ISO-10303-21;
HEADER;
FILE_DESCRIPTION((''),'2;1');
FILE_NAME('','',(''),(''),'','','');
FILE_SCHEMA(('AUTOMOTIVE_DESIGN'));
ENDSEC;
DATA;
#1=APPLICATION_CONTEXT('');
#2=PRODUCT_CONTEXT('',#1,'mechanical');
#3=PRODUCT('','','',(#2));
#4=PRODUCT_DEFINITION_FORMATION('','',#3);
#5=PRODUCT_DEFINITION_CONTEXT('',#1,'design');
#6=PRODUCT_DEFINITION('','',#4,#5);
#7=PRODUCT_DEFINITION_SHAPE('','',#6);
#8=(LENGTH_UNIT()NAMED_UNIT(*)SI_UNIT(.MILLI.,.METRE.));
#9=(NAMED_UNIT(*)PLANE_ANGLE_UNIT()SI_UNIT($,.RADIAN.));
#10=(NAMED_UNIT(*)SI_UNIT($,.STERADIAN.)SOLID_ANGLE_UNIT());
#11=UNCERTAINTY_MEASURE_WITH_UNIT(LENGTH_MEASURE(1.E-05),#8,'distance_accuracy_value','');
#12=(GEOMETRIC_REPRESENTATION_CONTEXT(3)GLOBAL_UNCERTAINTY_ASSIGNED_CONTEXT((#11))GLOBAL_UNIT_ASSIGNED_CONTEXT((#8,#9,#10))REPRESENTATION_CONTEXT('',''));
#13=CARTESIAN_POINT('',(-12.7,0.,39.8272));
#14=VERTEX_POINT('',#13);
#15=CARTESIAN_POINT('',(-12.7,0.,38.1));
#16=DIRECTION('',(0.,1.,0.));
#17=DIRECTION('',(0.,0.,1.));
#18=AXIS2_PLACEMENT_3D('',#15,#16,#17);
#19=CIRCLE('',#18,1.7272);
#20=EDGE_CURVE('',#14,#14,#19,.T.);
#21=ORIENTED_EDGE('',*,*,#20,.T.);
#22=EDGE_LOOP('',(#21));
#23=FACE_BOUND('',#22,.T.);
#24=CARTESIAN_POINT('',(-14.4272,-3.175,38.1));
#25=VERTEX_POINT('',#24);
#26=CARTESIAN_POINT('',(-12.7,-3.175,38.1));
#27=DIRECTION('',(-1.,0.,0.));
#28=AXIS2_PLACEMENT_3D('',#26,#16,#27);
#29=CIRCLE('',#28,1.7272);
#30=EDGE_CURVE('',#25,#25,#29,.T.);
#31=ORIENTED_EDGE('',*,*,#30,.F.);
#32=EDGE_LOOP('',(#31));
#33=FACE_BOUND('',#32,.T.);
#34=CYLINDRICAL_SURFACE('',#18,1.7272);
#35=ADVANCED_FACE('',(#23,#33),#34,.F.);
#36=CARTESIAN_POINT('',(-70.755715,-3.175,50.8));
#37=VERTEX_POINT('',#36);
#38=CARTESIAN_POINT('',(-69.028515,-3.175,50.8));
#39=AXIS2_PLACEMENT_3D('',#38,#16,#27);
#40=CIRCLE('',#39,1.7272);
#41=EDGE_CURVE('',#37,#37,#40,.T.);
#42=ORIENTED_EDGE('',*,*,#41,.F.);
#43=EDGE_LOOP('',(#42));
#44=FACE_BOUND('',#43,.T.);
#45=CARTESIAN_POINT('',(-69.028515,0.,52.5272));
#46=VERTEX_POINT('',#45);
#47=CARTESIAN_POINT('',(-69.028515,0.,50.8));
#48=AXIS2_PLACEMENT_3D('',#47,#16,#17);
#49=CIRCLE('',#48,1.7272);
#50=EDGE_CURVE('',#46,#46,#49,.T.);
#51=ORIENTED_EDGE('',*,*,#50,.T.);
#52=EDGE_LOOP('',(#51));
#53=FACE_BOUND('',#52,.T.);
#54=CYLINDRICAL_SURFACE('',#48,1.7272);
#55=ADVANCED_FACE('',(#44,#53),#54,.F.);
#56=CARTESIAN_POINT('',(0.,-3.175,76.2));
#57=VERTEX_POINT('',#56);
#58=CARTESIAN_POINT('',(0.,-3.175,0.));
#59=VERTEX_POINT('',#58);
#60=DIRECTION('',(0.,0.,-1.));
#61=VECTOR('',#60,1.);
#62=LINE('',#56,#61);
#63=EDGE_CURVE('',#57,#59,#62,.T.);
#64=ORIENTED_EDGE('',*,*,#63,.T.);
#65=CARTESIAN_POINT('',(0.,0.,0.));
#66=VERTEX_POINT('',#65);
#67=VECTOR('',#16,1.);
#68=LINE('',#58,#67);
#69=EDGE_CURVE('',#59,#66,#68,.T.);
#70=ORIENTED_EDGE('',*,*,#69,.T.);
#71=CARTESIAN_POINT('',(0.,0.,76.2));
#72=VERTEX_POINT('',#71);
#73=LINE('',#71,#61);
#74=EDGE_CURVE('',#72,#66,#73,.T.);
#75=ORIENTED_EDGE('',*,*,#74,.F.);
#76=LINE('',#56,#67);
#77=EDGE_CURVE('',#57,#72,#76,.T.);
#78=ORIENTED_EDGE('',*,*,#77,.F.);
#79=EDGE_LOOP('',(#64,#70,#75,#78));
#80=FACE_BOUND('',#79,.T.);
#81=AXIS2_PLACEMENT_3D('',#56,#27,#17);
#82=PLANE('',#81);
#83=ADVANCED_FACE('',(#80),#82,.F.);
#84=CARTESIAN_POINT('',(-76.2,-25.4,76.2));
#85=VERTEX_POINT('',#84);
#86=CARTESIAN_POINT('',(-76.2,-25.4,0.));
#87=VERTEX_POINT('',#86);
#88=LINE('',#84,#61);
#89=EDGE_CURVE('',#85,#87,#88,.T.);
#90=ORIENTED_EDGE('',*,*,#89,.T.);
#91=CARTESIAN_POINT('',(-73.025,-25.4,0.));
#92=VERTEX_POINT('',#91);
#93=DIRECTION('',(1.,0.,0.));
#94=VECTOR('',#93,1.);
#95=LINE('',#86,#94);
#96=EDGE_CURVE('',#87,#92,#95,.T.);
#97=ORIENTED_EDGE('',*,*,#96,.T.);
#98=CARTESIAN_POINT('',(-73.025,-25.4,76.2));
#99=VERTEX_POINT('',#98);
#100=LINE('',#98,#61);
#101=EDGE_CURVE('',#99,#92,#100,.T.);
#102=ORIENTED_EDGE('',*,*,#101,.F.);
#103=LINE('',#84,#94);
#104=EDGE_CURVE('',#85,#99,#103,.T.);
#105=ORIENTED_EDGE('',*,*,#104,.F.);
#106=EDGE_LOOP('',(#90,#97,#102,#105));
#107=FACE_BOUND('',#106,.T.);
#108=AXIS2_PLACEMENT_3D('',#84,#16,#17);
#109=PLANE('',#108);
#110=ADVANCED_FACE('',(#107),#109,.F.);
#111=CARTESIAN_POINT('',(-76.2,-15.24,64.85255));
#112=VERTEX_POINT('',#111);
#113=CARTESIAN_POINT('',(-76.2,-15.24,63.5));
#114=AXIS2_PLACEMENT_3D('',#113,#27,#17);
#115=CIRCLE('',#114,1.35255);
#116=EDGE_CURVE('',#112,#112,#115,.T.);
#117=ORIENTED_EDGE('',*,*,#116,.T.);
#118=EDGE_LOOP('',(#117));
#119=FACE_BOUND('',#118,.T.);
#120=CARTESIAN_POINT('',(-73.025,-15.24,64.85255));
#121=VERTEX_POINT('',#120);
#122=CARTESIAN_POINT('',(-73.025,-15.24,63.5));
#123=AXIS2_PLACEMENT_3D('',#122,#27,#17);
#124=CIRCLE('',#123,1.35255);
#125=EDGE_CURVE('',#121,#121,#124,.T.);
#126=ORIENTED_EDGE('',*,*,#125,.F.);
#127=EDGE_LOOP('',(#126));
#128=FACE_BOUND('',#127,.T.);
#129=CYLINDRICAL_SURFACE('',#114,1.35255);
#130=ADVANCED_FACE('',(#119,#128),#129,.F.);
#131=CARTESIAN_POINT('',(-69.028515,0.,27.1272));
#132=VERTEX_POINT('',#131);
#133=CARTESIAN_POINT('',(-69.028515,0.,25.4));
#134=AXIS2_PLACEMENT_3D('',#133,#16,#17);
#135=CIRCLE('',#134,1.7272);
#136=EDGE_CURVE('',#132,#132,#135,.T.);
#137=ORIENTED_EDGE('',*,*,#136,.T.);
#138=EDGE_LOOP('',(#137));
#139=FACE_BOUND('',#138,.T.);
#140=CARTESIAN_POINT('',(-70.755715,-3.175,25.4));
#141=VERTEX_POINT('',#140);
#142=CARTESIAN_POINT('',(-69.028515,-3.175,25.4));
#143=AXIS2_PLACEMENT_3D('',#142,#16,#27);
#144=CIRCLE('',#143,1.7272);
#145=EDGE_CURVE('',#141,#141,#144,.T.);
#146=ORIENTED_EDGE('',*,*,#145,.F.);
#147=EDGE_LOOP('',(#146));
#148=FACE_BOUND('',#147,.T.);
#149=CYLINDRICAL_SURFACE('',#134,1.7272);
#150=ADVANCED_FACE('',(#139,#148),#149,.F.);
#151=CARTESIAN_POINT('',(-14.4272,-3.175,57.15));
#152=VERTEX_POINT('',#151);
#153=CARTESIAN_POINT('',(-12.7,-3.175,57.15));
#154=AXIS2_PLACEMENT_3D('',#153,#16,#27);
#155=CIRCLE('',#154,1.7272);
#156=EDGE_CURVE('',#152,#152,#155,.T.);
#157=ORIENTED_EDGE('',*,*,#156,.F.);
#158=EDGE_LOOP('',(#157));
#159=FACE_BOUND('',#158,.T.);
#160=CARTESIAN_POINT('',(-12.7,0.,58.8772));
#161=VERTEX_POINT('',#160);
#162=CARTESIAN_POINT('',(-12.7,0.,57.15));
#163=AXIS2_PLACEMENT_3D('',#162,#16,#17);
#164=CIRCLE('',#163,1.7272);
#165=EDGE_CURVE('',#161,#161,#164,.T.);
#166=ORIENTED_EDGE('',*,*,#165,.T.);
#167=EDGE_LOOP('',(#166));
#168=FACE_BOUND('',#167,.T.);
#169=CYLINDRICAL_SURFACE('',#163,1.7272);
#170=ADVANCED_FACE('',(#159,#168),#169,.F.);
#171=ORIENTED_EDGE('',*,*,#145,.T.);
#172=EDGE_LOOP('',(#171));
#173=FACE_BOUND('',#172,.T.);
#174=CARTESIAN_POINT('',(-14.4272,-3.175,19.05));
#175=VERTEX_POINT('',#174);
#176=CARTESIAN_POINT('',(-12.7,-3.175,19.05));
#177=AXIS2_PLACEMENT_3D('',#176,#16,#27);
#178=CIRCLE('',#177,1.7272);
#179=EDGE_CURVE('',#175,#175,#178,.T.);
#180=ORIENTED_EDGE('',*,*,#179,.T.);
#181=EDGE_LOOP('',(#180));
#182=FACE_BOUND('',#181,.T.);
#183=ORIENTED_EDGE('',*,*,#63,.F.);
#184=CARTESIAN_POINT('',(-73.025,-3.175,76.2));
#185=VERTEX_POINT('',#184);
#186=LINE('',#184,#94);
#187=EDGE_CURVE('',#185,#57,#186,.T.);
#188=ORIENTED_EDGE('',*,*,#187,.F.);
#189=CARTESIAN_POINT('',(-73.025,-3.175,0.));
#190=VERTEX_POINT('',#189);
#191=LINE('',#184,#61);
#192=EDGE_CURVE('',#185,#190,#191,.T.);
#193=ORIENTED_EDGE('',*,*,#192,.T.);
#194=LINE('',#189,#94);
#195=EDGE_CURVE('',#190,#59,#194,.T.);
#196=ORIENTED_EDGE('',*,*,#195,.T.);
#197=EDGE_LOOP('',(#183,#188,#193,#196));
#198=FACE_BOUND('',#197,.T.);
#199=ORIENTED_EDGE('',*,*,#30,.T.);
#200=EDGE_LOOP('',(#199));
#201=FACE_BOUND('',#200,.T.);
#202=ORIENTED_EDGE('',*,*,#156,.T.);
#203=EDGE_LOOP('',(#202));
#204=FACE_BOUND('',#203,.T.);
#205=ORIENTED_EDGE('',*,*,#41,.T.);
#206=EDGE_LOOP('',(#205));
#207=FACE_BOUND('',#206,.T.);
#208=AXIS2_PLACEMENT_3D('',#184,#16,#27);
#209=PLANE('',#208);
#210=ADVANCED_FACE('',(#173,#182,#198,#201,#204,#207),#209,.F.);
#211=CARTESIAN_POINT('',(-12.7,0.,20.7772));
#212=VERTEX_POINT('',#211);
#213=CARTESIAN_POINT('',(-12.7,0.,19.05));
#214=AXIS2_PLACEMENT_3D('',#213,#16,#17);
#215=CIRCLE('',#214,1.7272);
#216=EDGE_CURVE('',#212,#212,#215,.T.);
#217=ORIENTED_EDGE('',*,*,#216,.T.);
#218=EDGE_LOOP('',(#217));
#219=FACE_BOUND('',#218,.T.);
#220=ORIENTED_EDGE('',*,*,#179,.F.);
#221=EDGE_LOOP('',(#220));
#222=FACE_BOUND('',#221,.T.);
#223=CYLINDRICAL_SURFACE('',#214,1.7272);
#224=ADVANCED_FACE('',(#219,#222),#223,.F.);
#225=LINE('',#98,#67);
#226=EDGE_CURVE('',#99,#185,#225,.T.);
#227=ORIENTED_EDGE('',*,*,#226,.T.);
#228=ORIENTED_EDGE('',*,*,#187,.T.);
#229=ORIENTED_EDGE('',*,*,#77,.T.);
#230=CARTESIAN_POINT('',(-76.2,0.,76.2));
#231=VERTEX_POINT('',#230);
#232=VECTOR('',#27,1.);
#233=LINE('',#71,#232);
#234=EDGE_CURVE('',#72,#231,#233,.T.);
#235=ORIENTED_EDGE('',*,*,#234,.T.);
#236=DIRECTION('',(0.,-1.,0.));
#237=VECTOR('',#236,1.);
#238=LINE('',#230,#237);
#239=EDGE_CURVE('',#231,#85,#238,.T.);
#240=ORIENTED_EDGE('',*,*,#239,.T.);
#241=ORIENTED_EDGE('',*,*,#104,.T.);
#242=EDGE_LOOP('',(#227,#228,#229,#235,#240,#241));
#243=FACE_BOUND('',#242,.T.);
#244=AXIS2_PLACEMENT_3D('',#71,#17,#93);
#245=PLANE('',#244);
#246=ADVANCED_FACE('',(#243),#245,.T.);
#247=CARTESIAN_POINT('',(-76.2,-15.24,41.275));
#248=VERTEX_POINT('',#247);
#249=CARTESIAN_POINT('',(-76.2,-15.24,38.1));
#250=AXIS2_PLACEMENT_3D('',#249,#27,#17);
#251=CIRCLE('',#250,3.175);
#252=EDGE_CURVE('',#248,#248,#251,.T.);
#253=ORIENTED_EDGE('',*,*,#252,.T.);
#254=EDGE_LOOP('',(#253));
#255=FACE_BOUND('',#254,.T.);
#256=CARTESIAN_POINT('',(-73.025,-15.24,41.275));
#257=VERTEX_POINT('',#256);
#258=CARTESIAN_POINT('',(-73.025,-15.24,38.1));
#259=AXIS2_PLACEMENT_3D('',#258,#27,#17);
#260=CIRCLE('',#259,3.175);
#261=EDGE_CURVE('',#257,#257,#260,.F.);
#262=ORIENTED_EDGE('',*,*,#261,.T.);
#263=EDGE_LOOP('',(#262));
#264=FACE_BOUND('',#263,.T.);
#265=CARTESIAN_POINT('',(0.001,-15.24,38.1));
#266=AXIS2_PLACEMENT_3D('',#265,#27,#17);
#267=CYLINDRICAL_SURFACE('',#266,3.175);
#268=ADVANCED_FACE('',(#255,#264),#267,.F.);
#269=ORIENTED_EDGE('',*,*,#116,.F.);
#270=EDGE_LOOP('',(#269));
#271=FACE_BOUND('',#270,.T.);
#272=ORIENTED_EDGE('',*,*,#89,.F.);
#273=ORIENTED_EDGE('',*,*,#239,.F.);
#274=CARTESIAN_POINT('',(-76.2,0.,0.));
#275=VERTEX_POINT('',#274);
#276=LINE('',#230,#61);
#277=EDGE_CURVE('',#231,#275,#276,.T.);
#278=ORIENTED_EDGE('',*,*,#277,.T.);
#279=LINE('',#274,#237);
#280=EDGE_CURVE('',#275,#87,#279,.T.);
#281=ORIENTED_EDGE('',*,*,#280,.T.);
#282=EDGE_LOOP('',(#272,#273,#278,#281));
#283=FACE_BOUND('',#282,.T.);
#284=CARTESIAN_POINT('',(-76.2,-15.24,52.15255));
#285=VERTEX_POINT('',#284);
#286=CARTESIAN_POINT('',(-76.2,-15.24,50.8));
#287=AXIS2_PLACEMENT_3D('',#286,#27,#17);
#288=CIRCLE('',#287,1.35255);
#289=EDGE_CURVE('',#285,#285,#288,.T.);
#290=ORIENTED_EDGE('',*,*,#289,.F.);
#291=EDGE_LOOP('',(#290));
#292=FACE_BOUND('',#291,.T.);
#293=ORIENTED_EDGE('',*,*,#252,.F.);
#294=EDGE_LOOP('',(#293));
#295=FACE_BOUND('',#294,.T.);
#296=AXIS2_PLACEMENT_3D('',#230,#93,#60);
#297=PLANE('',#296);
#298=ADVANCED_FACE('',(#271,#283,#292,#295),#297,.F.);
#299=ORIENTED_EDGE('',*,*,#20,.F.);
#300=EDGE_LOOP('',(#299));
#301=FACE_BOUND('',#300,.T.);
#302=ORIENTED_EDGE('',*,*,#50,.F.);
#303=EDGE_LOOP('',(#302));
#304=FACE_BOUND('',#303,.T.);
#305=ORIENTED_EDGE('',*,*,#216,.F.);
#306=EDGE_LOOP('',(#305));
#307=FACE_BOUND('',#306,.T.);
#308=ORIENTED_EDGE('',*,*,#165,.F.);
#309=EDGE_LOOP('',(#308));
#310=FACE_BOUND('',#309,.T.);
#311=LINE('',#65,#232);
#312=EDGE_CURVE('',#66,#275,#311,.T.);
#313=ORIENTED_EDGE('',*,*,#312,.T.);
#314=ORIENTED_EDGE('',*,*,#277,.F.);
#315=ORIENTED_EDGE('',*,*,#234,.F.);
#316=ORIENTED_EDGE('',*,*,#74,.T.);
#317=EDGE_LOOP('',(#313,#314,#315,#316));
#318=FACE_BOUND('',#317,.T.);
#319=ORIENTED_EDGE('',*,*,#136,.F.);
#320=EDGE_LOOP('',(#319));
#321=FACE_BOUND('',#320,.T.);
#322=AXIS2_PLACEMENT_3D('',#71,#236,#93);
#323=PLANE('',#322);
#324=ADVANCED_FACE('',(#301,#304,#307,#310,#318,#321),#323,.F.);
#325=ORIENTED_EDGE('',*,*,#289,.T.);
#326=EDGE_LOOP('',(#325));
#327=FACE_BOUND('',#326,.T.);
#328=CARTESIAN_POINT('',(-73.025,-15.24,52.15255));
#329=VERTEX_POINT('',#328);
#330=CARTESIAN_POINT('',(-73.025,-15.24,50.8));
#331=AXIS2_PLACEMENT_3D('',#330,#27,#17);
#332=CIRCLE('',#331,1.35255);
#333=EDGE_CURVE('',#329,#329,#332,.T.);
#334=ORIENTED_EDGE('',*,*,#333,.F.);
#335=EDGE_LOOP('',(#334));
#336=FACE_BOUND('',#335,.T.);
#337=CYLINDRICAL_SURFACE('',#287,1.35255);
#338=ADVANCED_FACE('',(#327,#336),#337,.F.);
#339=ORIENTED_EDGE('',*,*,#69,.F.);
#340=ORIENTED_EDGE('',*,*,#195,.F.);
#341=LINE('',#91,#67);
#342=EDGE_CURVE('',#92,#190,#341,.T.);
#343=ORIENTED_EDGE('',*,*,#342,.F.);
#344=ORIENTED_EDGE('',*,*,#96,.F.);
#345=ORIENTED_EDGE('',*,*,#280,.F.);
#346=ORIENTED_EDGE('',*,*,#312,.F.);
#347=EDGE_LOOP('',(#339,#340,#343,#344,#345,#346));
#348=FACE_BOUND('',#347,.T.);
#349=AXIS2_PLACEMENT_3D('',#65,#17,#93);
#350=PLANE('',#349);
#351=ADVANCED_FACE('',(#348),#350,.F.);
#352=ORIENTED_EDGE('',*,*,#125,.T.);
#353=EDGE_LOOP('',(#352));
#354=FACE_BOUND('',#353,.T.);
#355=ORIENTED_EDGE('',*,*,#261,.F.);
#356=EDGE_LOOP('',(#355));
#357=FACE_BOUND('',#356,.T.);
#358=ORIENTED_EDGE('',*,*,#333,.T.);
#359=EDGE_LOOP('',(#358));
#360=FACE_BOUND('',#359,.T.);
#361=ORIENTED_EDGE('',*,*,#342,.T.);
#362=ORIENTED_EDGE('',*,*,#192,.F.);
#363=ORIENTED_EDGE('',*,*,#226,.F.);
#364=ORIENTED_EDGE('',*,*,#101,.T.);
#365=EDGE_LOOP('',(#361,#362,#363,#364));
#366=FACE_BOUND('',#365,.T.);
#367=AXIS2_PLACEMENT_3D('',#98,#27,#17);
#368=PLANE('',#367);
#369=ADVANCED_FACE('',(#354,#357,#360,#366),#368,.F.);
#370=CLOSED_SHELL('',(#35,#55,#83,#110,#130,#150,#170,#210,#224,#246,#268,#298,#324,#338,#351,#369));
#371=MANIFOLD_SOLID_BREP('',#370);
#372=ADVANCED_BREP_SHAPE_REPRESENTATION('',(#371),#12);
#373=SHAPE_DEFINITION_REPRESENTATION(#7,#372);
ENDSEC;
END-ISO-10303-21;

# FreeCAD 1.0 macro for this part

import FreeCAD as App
import Part
import Sketcher
Q = App.Units.Quantity

doc = App.newDocument("Part")
body = doc.addObject("PartDesign::Body", "Body")

# Sketch on XY plane
sketch1 = body.newObject("Sketcher::SketchObject", "Sketch")
sketch1.AttachmentSupport = (doc.getObject("XY_Plane"), [""])
sketch1.MapMode = "FlatFace"
sketch1.addGeometry([
    Part.LineSegment(App.Vector(0, 0, 0), App.Vector(-76.2, 0, 0)),  # 0
    Part.LineSegment(App.Vector(-76.2, 0, 0), App.Vector(-76.2, -25.4, 0)),  # 1
    Part.LineSegment(App.Vector(-76.2, -25.4, 0), App.Vector(-73, -25.4, 0)),  # 2
    Part.LineSegment(App.Vector(-73, -25.4, 0), App.Vector(-73, -3.2, 0)),  # 3
    Part.LineSegment(App.Vector(-73, -3.2, 0), App.Vector(0, -3.2, 0)),  # 4
    Part.LineSegment(App.Vector(0, -3.2, 0), App.Vector(0, 0, 0)),  # 5
], False)
sketch1.addConstraint([
    Sketcher.Constraint("Coincident", 0, 2, 1, 1),
    Sketcher.Constraint("Coincident", 1, 2, 2, 1),
    Sketcher.Constraint("Coincident", 2, 2, 3, 1),
    Sketcher.Constraint("Coincident", 3, 2, 4, 1),
    Sketcher.Constraint("Coincident", 4, 2, 5, 1),
    Sketcher.Constraint("Coincident", 5, 2, 0, 1),
    Sketcher.Constraint("Horizontal", 0),
    Sketcher.Constraint("Vertical", 1),
    Sketcher.Constraint("Horizontal", 2),
    Sketcher.Constraint("Vertical", 3),
    Sketcher.Constraint("Horizontal", 4),
    Sketcher.Constraint("Vertical", 5),
    Sketcher.Constraint("Coincident", 5, 2, -1, 1),
    Sketcher.Constraint("Equal", 2, 5),
    Sketcher.Constraint("DistanceX", 0, 2, 0, 1, Q("3 in")),
    Sketcher.Constraint("DistanceY", 1, 2, 1, 1, Q("1 in")),
    Sketcher.Constraint("DistanceX", 2, 1, 2, 2, Q("0.125 in")),
])
pad1 = body.newObject("PartDesign::Pad", "Pad")
pad1.Profile = sketch1
pad1.Length = Q("3 in")

# Sketch on YZ plane
sketch2 = body.newObject("Sketcher::SketchObject", "Sketch001")
sketch2.AttachmentSupport = (doc.getObject("YZ_Plane"), [""])
sketch2.MapMode = "FlatFace"
sketch2.AttachmentOffset = App.Placement(App.Vector(0, 0, -3 * 25.4), App.Rotation())
sketch2.addGeometry(Part.Circle(App.Vector(-15.2, 38.1, 0), App.Vector(0, 0, 1), 3.2), False)
sketch2.addConstraint([
    Sketcher.Constraint("Diameter", 0, Q("0.25 in")),
    Sketcher.Constraint("DistanceX", 0, 3, -1, 1, Q("0.6 in")),
    Sketcher.Constraint("DistanceY", -1, 1, 0, 3, Q("1.5 in")),
])
pocket1 = body.newObject("PartDesign::Pocket", "Pocket")
pocket1.Profile = sketch2
pocket1.Type = "UpToFirst"
pocket1.Reversed = True

# Sketch on XZ plane
sketch3 = body.newObject("Sketcher::SketchObject", "Sketch002")
sketch3.AttachmentSupport = (doc.getObject("XZ_Plane"), [""])
sketch3.MapMode = "FlatFace"
sketch3.addGeometry([
    Part.Circle(App.Vector(-12.7, 19.1, 0), App.Vector(0, 0, 1), 1.7),
    Part.Circle(App.Vector(-12.7, 38.1, 0), App.Vector(0, 0, 1), 1.7),
    Part.Circle(App.Vector(-12.7, 57.1, 0), App.Vector(0, 0, 1), 1.7),
], False)
sketch3.addConstraint([
    Sketcher.Constraint("Equal", 0, 1),
    Sketcher.Constraint("Equal", 1, 2),
    Sketcher.Constraint("Vertical", 0, 3, 1, 3),
    Sketcher.Constraint("Vertical", 1, 3, 2, 3),
    Sketcher.Constraint("Diameter", 0, Q("0.136 in")),
    Sketcher.Constraint("DistanceX", 0, 3, -1, 1, Q("0.5 in")),
    Sketcher.Constraint("DistanceY", -1, 1, 1, 3, Q("1.5 in")),
    Sketcher.Constraint("DistanceY", 0, 3, 2, 3, Q("1.5 in")),
    Sketcher.Constraint("DistanceY", -1, 1, 0, 3, Q("0.75 in")),
])
doc.recompute()
hole = body.newObject("PartDesign::Hole", "Hole")
hole.Profile = sketch3
hole.ThreadType = "None"
hole.Diameter = Q("0.136 in")
hole.DepthType = "ThroughAll"
hole.Reversed = True

# Sketch on XZ plane
sketch4 = body.newObject("Sketcher::SketchObject", "Sketch003")
sketch4.AttachmentSupport = (doc.getObject("XZ_Plane"), [""])
sketch4.MapMode = "FlatFace"
sketch4.addGeometry([
    Part.Circle(App.Vector(-69, 25.4, 0), App.Vector(0, 0, 1), 1.7),
    Part.Circle(App.Vector(-69, 50.8, 0), App.Vector(0, 0, 1), 1.7),
], False)
sketch4.addConstraint([
    Sketcher.Constraint("Equal", 0, 1),
    Sketcher.Constraint("Vertical", 0, 3, 1, 3),
    Sketcher.Constraint("Diameter", 0, Q("0.136 in")),
    Sketcher.Constraint("DistanceY", -1, 1, 0, 3, Q("1 in")),
    Sketcher.Constraint("DistanceY", -1, 1, 1, 3, Q("2 in")),
    Sketcher.Constraint("DistanceX", 0, 3, -1, 1, Q("69.028515 mm")),
])
doc.recompute()
hole2 = body.newObject("PartDesign::Hole", "Hole001")
hole2.Profile = sketch4
hole2.ThreadType = "None"
hole2.Diameter = Q("0.136 in")
hole2.DepthType = "ThroughAll"
hole2.Reversed = True

# Sketch on YZ plane
sketch5 = body.newObject("Sketcher::SketchObject", "Sketch004")
sketch5.AttachmentSupport = (doc.getObject("YZ_Plane"), [""])
sketch5.MapMode = "FlatFace"
sketch5.AttachmentOffset = App.Placement(App.Vector(0, 0, -3 * 25.4), App.Rotation())
sketch5.addGeometry([
    Part.Circle(App.Vector(-15.2, 50.8, 0), App.Vector(0, 0, 1), 1.4),
    Part.Circle(App.Vector(-15.2, 63.5, 0), App.Vector(0, 0, 1), 1.4),
], False)
sketch5.addConstraint([
    Sketcher.Constraint("Equal", 0, 1),
    Sketcher.Constraint("Vertical", 0, 3, 1, 3),
    Sketcher.Constraint("DistanceY", -1, 1, 0, 3, Q("2 in")),
    Sketcher.Constraint("Diameter", 0, Q("0.1065 in")),
    Sketcher.Constraint("DistanceX", 0, 3, -1, 1, Q("0.6 in")),
    Sketcher.Constraint("DistanceY", -1, 1, 1, 3, Q("2.5 in")),
])
doc.recompute()
hole3 = body.newObject("PartDesign::Hole", "Hole002")
hole3.Profile = sketch5
hole3.ThreadType = "None"
hole3.Diameter = Q("0.1065 in")
hole3.DepthType = "ThroughAll"
hole3.Reversed = True

doc.recompute()
